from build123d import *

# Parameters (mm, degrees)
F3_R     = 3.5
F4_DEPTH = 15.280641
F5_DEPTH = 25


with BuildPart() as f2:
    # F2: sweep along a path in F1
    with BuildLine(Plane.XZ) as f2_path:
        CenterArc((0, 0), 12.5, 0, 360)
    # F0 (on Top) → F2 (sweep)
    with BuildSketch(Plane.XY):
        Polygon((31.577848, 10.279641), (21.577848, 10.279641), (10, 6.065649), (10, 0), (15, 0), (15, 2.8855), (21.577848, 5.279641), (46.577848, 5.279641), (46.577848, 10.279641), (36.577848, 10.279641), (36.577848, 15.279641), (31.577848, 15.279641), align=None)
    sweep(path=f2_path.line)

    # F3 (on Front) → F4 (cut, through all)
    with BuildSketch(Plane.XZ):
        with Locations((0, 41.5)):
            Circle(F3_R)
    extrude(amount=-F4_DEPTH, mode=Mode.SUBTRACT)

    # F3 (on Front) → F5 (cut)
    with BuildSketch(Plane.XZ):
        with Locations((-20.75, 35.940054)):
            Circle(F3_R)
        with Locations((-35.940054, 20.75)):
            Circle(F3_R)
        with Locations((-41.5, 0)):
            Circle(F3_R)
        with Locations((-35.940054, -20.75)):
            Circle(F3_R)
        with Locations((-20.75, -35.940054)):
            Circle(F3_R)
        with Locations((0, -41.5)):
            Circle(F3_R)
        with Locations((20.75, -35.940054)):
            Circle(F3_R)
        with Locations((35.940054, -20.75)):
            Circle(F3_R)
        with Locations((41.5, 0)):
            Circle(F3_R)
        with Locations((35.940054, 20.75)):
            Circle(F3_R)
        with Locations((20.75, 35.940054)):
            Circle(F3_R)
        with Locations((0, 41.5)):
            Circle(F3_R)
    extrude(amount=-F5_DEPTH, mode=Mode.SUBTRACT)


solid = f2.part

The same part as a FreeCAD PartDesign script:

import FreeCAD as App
import Part
import Sketcher
from FreeCAD import Vector
Q = App.Units.Quantity


def add_polygon(sketch, points):
    """Adds a closed chain of lines whose ends are joined by coincident constraints."""
    first, n = sketch.GeometryCount, len(points)
    for a, b in zip(points, points[1:] + points[:1]):
        sketch.addGeometry(Part.LineSegment(App.Vector(*a, 0), App.Vector(*b, 0)), False)
    for i in range(n):
        sketch.addConstraint(Sketcher.Constraint("Coincident", first + i, 2, first + (i + 1) % n, 1))

doc = App.newDocument("Part")
params = doc.addObject("Spreadsheet::Sheet", "Params")
for row, (alias, value) in enumerate([
    ("sketch1_width", "10 mm"),
    ("sketch1_width2", "5 mm"),
    ("sketch1_length", "7 mm"),
    ("sketch2_diameter", "25 mm"),
    ("sketch3_diameter", "7 mm"),
    ("sketch4_diameter", "7 mm"),
    ("pocket2_length", "25 mm"),
], start=1):
    params.set(f"A{row}", alias)
    params.set(f"B{row}", "=" + value)
    params.setAlias(f"B{row}", alias)

body = doc.addObject("PartDesign::Body", "Body")

sketch1 = doc.addObject("Sketcher::SketchObject", "Sketch")
body.addObject(sketch1)
sketch1.AttachmentSupport = (doc.XY_Plane, [""])
sketch1.MapMode = "FlatFace"
add_polygon(sketch1, [(31.577848, 10.279641), (21.577848, 10.279641), (10, 6.065649), (10, 0), (15, 0), (15, 2.8855), (21.577848, 5.279641), (46.577848, 5.279641), (46.577848, 10.279641), (36.577848, 10.279641), (36.577848, 15.279641), (31.577848, 15.279641)])
sketch1.addConstraint([
    Sketcher.Constraint("Horizontal", 0),
    Sketcher.Constraint("Vertical", 2),
    Sketcher.Constraint("Horizontal", 3),
    Sketcher.Constraint("Vertical", 4),
    Sketcher.Constraint("Horizontal", 6),
    Sketcher.Constraint("Vertical", 7),
    Sketcher.Constraint("Horizontal", 8),
    Sketcher.Constraint("Vertical", 9),
    Sketcher.Constraint("Horizontal", 10),
    Sketcher.Constraint("Vertical", 11),
    Sketcher.Constraint("PointOnObject", 2, 2, -1),
    Sketcher.Constraint("Parallel", 1, 5),
    Sketcher.Constraint("Horizontal", 0, 2, 7, 2),
    Sketcher.Constraint("Vertical", 0, 2, 5, 2),
    Sketcher.Constraint("Equal", 0, 8),
    Sketcher.Constraint("Equal", 3, 10),
    Sketcher.Constraint("Equal", 10, 7),
    Sketcher.Constraint("Equal", 7, 9),
    Sketcher.Constraint("DistanceX", 0, 2, 0, 1, Q("10 mm")),
    Sketcher.Constraint("DistanceX", 3, 1, 3, 2, Q("5 mm")),
    Sketcher.Constraint("Angle", 1, Q("-160 deg")),
    Sketcher.Constraint("Distance", 5, Q("7 mm")),
    Sketcher.Constraint("DistanceX", -1, 1, 1, 2, Q("10 mm")),
    Sketcher.Constraint("DistanceY", 4, 1, 4, 2, Q("2.8855 mm")),
])
sketch1.setExpression("Constraints[30]", "Params.sketch1_width")
sketch1.setExpression("Constraints[31]", "Params.sketch1_width2")
sketch1.setExpression("Constraints[33]", "Params.sketch1_length")

sketch2 = doc.addObject("Sketcher::SketchObject", "Sketch001")
body.addObject(sketch2)
sketch2.AttachmentSupport = (doc.XZ_Plane, [""])
sketch2.MapMode = "FlatFace"
sketch2.addGeometry(Part.Circle(Vector(0, 0, 0), Vector(0, 0, 1), 12.5), False)
sketch2.addConstraint([
    Sketcher.Constraint("Coincident", 0, 3, -1, 1),
    Sketcher.Constraint("Diameter", 0, Q("25 mm")),
])
sketch2.setExpression("Constraints[1]", "Params.sketch2_diameter")
doc.recompute()

additivepipe = doc.addObject("PartDesign::AdditivePipe", "AdditivePipe")
body.addObject(additivepipe)
additivepipe.Profile = sketch1
additivepipe.Spine = (sketch2, ["Edge1"])

sketch3 = doc.addObject("Sketcher::SketchObject", "Sketch002")
body.addObject(sketch3)
sketch3.AttachmentSupport = (doc.XZ_Plane, [""])
sketch3.MapMode = "FlatFace"
sketch3.addGeometry(Part.Circle(Vector(0, 41.5, 0), Vector(0, 0, 1), 3.5), False)
sketch3.addConstraint([
    Sketcher.Constraint("PointOnObject", 0, 3, -2),
    Sketcher.Constraint("Diameter", 0, Q("7 mm")),
    Sketcher.Constraint("DistanceY", -1, 1, 0, 3, Q("41.5 mm")),
])
sketch3.setExpression("Constraints[1]", "Params.sketch3_diameter")
pocket1 = doc.addObject("PartDesign::Pocket", "Pocket")
body.addObject(pocket1)
pocket1.Profile = sketch3
pocket1.Type = "ThroughAll"

sketch4 = doc.addObject("Sketcher::SketchObject", "Sketch003")
body.addObject(sketch4)
sketch4.AttachmentSupport = (doc.XZ_Plane, [""])
sketch4.MapMode = "FlatFace"
sketch4.addGeometry([
    Part.Circle(Vector(-20.75, 35.940054, 0), Vector(0, 0, 1), 3.5),
    Part.Circle(Vector(-35.940054, 20.75, 0), Vector(0, 0, 1), 3.5),
    Part.Circle(Vector(-41.5, 0, 0), Vector(0, 0, 1), 3.5),
    Part.Circle(Vector(-35.940054, -20.75, 0), Vector(0, 0, 1), 3.5),
    Part.Circle(Vector(-20.75, -35.940054, 0), Vector(0, 0, 1), 3.5),
    Part.Circle(Vector(0, -41.5, 0), Vector(0, 0, 1), 3.5),
    Part.Circle(Vector(20.75, -35.940054, 0), Vector(0, 0, 1), 3.5),
    Part.Circle(Vector(35.940054, -20.75, 0), Vector(0, 0, 1), 3.5),
    Part.Circle(Vector(41.5, 0, 0), Vector(0, 0, 1), 3.5),
    Part.Circle(Vector(35.940054, 20.75, 0), Vector(0, 0, 1), 3.5),
    Part.Circle(Vector(20.75, 35.940054, 0), Vector(0, 0, 1), 3.5),
    Part.Circle(Vector(0, 41.5, 0), Vector(0, 0, 1), 3.5),
], False)
sketch4.addConstraint([
    Sketcher.Constraint("Equal", 0, 1),
    Sketcher.Constraint("Equal", 1, 2),
    Sketcher.Constraint("Equal", 2, 3),
    Sketcher.Constraint("Equal", 3, 4),
    Sketcher.Constraint("Equal", 4, 5),
    Sketcher.Constraint("Equal", 5, 6),
    Sketcher.Constraint("Equal", 6, 7),
    Sketcher.Constraint("Equal", 7, 8),
    Sketcher.Constraint("Equal", 8, 9),
    Sketcher.Constraint("Equal", 9, 10),
    Sketcher.Constraint("Equal", 10, 11),
    Sketcher.Constraint("Symmetric", 0, 3, 6, 3, -1, 1),
    Sketcher.Constraint("Symmetric", 1, 3, 7, 3, -1, 1),
    Sketcher.Constraint("Symmetric", 2, 3, 8, 3, -1, 1),
    Sketcher.Constraint("Symmetric", 3, 3, 9, 3, -1, 1),
    Sketcher.Constraint("Symmetric", 4, 3, 10, 3, -1, 1),
    Sketcher.Constraint("Symmetric", 5, 3, 11, 3, -1, 1),
    Sketcher.Constraint("Symmetric", 4, 3, 6, 3, -2),
    Sketcher.Constraint("Symmetric", 3, 3, 7, 3, -2),
    Sketcher.Constraint("PointOnObject", 2, 3, -1),
    Sketcher.Constraint("PointOnObject", 5, 3, -2),
    Sketcher.Constraint("Diameter", 0, Q("7 mm")),
    Sketcher.Constraint("DistanceX", 2, 3, -1, 1, Q("41.5 mm")),
    Sketcher.Constraint("DistanceY", 5, 3, -1, 1, Q("41.5 mm")),
    Sketcher.Constraint("DistanceY", 3, 3, 1, 3, Q("41.5 mm")),
    Sketcher.Constraint("DistanceX", 4, 3, 6, 3, Q("41.5 mm")),
    Sketcher.Constraint("DistanceY", 4, 3, 0, 3, Q("71.880108 mm")),
    Sketcher.Constraint("DistanceX", 3, 3, 7, 3, Q("71.880108 mm")),
])
sketch4.setExpression("Constraints[21]", "Params.sketch4_diameter")
pocket2 = doc.addObject("PartDesign::Pocket", "Pocket001")
body.addObject(pocket2)
pocket2.Profile = sketch4
pocket2.setExpression("Length", "Params.pocket2_length")

doc.recompute()
